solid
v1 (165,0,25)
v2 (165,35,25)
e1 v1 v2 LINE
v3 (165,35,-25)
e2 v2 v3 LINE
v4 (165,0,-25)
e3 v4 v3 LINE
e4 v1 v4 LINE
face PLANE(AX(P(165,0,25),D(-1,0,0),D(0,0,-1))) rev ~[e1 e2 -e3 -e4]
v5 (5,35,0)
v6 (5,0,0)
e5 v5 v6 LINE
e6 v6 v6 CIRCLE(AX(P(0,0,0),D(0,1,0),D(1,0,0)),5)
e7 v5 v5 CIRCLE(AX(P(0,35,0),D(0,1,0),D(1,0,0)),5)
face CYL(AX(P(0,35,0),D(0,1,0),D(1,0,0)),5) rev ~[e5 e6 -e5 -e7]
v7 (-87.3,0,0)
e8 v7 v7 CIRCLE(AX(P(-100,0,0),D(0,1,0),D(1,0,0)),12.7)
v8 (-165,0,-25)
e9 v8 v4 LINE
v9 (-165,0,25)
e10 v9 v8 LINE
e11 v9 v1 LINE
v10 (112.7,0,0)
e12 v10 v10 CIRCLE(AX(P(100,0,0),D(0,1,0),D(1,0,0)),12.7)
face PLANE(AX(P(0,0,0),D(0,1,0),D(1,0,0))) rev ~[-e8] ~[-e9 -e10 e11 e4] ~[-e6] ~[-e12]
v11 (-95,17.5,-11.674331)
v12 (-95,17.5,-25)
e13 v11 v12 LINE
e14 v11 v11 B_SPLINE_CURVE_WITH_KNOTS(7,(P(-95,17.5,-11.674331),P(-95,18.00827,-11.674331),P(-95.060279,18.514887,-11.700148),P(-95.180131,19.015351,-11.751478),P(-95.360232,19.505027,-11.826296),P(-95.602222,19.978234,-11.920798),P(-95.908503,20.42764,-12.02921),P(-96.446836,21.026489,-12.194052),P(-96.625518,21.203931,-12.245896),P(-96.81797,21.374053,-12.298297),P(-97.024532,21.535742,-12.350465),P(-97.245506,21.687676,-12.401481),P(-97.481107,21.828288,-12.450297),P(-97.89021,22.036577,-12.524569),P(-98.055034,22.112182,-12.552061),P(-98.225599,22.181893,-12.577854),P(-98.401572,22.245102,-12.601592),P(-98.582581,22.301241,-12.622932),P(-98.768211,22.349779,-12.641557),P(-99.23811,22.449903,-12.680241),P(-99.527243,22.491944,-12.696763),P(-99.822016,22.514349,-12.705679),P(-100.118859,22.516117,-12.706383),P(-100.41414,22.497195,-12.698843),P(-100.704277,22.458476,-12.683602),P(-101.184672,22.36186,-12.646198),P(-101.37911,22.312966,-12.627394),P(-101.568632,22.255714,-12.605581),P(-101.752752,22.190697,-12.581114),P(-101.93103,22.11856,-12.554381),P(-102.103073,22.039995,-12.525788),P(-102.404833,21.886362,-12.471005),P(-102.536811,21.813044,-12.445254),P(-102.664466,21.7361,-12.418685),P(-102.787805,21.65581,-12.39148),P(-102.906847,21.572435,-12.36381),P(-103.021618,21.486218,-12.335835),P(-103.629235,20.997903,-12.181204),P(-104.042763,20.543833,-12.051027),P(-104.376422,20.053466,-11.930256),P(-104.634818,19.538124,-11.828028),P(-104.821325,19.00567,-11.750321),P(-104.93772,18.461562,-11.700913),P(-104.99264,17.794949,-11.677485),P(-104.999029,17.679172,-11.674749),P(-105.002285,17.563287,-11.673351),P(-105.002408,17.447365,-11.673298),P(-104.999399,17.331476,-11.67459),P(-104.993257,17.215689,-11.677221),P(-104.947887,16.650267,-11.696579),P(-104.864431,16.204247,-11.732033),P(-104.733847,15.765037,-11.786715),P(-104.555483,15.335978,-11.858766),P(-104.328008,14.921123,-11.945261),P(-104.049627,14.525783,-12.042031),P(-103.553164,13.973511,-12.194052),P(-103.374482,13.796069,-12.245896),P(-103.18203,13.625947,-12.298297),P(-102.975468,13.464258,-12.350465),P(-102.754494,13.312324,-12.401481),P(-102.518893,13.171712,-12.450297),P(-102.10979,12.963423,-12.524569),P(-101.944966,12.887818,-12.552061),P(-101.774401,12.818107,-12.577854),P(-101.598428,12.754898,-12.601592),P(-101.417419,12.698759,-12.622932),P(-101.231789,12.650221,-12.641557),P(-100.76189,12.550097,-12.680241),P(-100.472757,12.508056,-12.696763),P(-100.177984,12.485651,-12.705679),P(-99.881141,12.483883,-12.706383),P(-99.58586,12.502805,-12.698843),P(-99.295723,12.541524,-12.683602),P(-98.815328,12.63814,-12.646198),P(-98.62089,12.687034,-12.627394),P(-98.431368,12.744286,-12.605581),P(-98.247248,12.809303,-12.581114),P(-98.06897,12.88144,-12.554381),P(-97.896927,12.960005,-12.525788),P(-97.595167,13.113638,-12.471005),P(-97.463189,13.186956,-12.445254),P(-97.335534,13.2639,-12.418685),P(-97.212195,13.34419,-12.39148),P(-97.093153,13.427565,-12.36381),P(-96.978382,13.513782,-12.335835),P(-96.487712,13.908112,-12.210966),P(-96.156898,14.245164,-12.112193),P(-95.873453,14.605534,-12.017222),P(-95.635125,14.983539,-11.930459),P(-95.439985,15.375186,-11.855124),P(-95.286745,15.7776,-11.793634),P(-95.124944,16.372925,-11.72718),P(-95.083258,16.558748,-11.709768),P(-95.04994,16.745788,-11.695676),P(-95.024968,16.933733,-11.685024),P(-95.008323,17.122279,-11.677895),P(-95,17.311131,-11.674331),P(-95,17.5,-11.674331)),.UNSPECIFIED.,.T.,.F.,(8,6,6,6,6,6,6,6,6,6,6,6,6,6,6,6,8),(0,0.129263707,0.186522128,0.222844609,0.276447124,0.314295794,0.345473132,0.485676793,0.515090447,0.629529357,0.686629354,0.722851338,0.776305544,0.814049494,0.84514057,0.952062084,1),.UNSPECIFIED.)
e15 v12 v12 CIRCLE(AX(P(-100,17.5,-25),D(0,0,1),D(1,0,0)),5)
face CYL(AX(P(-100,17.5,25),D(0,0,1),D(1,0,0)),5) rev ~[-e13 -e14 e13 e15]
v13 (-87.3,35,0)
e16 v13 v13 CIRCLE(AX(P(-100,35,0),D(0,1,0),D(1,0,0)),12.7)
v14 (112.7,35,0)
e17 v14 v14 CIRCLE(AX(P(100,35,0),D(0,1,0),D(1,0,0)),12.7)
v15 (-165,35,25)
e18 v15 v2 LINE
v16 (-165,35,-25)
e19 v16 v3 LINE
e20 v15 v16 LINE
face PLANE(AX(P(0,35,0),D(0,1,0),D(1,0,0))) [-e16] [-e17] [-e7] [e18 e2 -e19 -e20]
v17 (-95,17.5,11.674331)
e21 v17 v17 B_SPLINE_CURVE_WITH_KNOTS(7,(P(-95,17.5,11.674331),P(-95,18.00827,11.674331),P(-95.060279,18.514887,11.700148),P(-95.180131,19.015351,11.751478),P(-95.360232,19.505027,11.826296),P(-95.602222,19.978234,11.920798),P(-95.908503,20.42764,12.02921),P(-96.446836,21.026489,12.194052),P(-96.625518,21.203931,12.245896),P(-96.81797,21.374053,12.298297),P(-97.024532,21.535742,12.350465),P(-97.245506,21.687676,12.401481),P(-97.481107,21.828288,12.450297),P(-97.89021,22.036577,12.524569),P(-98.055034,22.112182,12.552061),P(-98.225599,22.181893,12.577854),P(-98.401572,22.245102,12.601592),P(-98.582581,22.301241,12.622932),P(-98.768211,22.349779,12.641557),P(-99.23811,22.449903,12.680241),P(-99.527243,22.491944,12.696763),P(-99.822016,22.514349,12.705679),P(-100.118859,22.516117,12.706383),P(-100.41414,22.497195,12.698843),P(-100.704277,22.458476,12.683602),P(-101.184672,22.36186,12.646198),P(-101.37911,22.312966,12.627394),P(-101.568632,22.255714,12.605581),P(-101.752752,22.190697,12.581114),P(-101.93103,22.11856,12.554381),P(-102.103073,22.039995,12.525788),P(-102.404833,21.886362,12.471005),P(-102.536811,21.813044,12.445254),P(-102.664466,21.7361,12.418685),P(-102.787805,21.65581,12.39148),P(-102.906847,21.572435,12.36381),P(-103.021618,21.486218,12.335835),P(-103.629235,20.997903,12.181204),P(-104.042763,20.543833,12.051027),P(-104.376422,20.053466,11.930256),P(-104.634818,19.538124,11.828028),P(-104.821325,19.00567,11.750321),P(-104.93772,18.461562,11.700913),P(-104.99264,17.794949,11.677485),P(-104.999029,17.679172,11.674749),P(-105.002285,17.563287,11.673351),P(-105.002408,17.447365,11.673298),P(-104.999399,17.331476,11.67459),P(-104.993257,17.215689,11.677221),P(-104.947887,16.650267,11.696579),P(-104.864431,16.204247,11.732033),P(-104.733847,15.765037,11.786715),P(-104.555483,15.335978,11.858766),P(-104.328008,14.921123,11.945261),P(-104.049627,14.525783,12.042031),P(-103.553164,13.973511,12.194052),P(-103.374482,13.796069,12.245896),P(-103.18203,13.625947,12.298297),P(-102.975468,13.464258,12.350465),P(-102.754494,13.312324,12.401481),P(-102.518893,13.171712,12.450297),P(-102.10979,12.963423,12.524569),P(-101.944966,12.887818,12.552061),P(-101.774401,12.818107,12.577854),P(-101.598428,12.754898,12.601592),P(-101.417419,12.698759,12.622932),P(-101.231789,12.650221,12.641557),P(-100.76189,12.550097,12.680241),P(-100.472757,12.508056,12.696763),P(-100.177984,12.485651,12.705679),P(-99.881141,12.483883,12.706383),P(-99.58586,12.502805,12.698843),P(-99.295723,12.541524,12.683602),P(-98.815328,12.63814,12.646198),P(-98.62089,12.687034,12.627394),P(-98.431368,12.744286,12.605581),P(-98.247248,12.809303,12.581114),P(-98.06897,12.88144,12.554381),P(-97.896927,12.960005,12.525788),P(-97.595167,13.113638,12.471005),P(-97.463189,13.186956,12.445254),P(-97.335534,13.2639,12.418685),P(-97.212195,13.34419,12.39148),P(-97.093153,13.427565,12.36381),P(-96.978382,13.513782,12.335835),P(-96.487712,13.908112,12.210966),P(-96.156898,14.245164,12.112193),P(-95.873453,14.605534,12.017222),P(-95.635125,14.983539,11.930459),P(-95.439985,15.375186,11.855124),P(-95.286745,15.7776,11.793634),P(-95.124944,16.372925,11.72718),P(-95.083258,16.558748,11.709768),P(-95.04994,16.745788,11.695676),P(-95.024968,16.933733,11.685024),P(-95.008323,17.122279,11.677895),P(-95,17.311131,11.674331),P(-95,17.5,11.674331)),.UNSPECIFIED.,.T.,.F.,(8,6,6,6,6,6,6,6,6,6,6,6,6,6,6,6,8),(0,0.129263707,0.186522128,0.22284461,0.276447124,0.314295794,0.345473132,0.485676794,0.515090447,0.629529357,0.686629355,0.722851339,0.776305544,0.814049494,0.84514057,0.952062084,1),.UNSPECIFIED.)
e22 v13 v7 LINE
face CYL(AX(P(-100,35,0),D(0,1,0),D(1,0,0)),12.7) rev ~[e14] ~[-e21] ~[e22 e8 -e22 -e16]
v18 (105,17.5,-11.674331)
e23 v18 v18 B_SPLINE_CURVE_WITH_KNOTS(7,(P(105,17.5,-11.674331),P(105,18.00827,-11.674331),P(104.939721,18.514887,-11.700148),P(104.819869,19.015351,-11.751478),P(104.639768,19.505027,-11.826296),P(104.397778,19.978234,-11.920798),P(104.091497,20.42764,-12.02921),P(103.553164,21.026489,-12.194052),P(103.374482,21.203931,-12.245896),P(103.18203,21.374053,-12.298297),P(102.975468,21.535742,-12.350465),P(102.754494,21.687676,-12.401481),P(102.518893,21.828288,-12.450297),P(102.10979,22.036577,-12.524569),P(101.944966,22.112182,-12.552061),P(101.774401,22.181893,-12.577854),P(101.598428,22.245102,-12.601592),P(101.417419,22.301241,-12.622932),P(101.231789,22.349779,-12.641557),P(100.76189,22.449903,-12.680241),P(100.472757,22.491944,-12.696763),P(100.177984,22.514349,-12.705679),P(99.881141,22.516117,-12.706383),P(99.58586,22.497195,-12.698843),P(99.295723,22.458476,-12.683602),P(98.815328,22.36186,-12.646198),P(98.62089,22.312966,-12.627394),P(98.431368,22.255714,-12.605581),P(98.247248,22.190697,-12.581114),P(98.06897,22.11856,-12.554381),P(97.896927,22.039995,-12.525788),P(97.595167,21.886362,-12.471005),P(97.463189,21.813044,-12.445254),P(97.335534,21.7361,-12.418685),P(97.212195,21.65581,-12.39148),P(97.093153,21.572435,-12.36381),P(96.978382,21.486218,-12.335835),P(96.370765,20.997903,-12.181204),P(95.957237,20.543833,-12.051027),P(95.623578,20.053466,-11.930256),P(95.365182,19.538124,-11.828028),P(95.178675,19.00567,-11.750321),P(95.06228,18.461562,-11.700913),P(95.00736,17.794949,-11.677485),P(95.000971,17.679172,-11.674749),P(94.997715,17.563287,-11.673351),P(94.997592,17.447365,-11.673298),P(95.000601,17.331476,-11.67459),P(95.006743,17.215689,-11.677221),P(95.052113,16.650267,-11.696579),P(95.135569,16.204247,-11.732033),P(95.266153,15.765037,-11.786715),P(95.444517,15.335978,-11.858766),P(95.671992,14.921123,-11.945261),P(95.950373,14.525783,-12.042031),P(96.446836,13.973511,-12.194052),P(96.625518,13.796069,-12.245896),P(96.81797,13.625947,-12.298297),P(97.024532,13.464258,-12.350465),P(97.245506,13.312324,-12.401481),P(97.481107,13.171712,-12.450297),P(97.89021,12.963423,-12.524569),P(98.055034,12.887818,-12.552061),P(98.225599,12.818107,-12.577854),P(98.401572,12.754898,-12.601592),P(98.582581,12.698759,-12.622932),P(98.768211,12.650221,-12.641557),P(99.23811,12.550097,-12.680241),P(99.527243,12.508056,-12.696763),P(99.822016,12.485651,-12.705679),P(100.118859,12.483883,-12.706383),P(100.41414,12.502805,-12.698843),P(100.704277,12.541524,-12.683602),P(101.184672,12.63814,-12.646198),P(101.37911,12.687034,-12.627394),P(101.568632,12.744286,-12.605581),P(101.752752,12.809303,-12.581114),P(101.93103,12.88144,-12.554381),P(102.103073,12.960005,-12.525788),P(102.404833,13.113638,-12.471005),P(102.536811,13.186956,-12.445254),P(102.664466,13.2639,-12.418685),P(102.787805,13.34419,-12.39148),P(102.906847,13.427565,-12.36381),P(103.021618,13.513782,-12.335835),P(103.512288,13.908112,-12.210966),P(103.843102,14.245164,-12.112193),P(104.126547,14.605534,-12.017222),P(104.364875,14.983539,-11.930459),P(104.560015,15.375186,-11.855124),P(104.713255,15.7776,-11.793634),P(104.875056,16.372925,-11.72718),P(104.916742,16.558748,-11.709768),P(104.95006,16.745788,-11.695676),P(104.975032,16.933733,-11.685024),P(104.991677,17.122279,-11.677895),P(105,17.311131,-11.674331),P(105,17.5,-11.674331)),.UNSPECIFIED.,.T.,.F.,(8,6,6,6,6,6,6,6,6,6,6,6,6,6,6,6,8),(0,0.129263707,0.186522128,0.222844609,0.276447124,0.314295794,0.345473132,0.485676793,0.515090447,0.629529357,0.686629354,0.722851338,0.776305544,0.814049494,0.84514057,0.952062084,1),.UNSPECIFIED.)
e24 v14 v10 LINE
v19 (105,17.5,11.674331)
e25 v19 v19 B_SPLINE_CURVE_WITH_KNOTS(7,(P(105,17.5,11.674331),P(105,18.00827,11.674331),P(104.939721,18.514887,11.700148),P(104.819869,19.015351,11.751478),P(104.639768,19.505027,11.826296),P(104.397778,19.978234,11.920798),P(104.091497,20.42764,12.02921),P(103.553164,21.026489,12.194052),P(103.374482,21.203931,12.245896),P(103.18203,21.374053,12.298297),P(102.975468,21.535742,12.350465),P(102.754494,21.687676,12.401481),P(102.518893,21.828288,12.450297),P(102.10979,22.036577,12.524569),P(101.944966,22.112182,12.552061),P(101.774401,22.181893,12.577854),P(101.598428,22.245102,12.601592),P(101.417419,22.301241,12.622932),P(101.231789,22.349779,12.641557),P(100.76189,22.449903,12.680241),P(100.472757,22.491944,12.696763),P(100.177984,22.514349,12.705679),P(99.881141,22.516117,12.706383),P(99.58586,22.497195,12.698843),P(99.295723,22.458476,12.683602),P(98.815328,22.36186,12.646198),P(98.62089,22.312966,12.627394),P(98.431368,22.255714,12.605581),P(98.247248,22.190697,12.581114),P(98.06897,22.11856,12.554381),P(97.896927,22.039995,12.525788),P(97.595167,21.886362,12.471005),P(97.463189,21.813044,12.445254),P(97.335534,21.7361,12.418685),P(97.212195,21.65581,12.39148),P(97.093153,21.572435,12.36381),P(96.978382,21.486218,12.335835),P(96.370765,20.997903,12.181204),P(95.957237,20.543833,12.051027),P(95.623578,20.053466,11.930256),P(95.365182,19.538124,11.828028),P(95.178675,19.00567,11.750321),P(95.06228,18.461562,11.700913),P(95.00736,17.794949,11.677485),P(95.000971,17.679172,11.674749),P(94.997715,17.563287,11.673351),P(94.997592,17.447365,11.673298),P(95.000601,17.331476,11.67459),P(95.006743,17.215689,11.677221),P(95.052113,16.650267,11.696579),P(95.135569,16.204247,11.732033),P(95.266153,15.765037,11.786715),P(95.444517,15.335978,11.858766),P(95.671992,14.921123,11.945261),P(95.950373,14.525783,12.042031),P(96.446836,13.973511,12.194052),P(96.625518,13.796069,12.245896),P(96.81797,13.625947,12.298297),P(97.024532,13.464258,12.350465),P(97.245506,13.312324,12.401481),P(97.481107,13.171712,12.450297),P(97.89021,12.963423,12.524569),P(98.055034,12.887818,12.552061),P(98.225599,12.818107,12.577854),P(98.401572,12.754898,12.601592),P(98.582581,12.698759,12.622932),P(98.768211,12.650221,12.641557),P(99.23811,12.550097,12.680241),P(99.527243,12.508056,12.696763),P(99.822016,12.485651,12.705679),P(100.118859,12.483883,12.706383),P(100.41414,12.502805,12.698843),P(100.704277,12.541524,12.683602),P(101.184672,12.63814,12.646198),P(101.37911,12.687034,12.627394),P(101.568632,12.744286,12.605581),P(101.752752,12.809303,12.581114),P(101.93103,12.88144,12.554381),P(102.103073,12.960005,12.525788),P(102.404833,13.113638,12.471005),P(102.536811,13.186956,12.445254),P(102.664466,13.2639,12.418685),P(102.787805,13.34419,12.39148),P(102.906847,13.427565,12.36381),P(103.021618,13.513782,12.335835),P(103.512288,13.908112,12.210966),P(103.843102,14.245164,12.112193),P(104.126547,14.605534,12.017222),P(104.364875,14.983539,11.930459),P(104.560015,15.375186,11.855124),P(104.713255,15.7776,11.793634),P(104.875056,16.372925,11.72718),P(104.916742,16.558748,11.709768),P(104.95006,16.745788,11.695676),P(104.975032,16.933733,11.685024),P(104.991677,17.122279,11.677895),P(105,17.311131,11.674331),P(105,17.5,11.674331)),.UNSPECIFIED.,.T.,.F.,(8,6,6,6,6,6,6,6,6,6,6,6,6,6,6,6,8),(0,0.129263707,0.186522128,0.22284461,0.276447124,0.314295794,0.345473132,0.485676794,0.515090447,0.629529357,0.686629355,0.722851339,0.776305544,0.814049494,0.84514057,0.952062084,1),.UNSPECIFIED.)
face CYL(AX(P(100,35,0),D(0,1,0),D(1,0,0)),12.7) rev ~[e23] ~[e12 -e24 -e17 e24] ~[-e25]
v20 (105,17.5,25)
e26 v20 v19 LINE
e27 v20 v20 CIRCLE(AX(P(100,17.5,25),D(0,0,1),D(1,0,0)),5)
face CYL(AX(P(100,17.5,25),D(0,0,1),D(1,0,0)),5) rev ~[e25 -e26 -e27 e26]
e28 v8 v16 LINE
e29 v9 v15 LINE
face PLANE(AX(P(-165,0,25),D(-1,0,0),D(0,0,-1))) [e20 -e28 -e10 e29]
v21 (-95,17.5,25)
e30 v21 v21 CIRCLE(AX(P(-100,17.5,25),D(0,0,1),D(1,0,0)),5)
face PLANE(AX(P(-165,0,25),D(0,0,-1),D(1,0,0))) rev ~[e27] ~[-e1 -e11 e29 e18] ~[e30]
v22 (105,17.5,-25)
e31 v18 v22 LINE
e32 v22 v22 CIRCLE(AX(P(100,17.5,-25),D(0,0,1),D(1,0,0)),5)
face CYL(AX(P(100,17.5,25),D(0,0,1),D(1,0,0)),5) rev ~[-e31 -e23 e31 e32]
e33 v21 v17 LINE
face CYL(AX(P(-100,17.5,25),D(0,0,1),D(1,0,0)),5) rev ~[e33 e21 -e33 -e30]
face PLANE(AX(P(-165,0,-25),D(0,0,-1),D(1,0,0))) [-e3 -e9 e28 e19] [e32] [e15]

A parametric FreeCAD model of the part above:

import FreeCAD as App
import Part
import Sketcher
from FreeCAD import Vector

doc = App.newDocument("Part")
body = doc.addObject("PartDesign::Body", "Body")

# Sketch on XZ plane
sketch1 = body.newObject("Sketcher::SketchObject", "Sketch")
sketch1.AttachmentSupport = (doc.getObject("XZ_Plane"), [""])
sketch1.MapMode = "FlatFace"
sketch1.addGeometry(Part.LineSegment(Vector(-165, -25, 0), Vector(-165, 25, 0)), False)
sketch1.addGeometry(Part.LineSegment(Vector(-165, 25, 0), Vector(165, 25, 0)), False)
sketch1.addGeometry(Part.LineSegment(Vector(165, 25, 0), Vector(165, -25, 0)), False)
sketch1.addGeometry(Part.LineSegment(Vector(165, -25, 0), Vector(-165, -25, 0)), False)
sketch1.addConstraint(Sketcher.Constraint("Coincident", 0, 2, 1, 1))
sketch1.addConstraint(Sketcher.Constraint("Coincident", 1, 2, 2, 1))
sketch1.addConstraint(Sketcher.Constraint("Coincident", 2, 2, 3, 1))
sketch1.addConstraint(Sketcher.Constraint("Coincident", 3, 2, 0, 1))
sketch1.addConstraint(Sketcher.Constraint("Vertical", 0))
sketch1.addConstraint(Sketcher.Constraint("Horizontal", 1))
sketch1.addConstraint(Sketcher.Constraint("Vertical", 2))
sketch1.addConstraint(Sketcher.Constraint("Horizontal", 3))
sketch1.addConstraint(Sketcher.Constraint("Symmetric", 0, 2, 2, 2, -1, 1))
sketch1.addConstraint(Sketcher.Constraint("DistanceX", 1, 1, 1, 2, 330.0))
sketch1.addConstraint(Sketcher.Constraint("DistanceY", 0, 1, 0, 2, 50.0))
pad1 = body.newObject("PartDesign::Pad", "Pad")
pad1.Profile = sketch1
pad1.Length = 35
pad1.Reversed = True

# Sketch on XZ plane
sketch2 = body.newObject("Sketcher::SketchObject", "Sketch001")
sketch2.AttachmentSupport = (doc.getObject("XZ_Plane"), [""])
sketch2.MapMode = "FlatFace"
sketch2.AttachmentOffset = App.Placement(Vector(0, 0, -35), App.Rotation())
sketch2.addGeometry(Part.Circle(Vector(-100, 0, 0), Vector(0, 0, 1), 13), False)
sketch2.addGeometry(Part.Circle(Vector(100, 0, 0), Vector(0, 0, 1), 13), False)
sketch2.addConstraint(Sketcher.Constraint("Equal", 0, 1))
sketch2.addConstraint(Sketcher.Constraint("Symmetric", 0, 3, 1, 3, -1, 1))
sketch2.addConstraint(Sketcher.Constraint("PointOnObject", 0, 3, -1))
sketch2.addConstraint(Sketcher.Constraint("Diameter", 0, 25.4))
sketch2.addConstraint(Sketcher.Constraint("DistanceX", 0, 3, -1, 1, 100.0))
pocket1 = body.newObject("PartDesign::Pocket", "Pocket")
pocket1.Profile = sketch2
pocket1.Length = 70
pocket1.Reversed = True

# Sketch on XY plane
sketch3 = body.newObject("Sketcher::SketchObject", "Sketch002")
sketch3.AttachmentSupport = (doc.getObject("XY_Plane"), [""])
sketch3.MapMode = "FlatFace"
sketch3.AttachmentOffset = App.Placement(Vector(0, 0, 25), App.Rotation())
sketch3.addGeometry(Part.Circle(Vector(-100, 18, 0), Vector(0, 0, 1), 5), False)
sketch3.addGeometry(Part.Circle(Vector(100, 18, 0), Vector(0, 0, 1), 5), False)
sketch3.addConstraint(Sketcher.Constraint("Equal", 0, 1))
sketch3.addConstraint(Sketcher.Constraint("Symmetric", 0, 3, 1, 3, -2))
sketch3.addConstraint(Sketcher.Constraint("Diameter", 0, 10.0))
sketch3.addConstraint(Sketcher.Constraint("DistanceX", 0, 3, -1, 1, 100.0))
sketch3.addConstraint(Sketcher.Constraint("DistanceY", -1, 1, 0, 3, 17.5))
pocket2 = body.newObject("PartDesign::Pocket", "Pocket001")
pocket2.Profile = sketch3
pocket2.Length = 70

# Sketch on XZ plane
sketch4 = body.newObject("Sketcher::SketchObject", "Sketch003")
sketch4.AttachmentSupport = (doc.getObject("XZ_Plane"), [""])
sketch4.MapMode = "FlatFace"
sketch4.AttachmentOffset = App.Placement(Vector(0, 0, -35), App.Rotation())
sketch4.addGeometry(Part.Circle(Vector(0, 0, 0), Vector(0, 0, 1), 5), False)
sketch4.addConstraint(Sketcher.Constraint("Coincident", 0, 3, -1, 1))
sketch4.addConstraint(Sketcher.Constraint("Diameter", 0, 10.0))
pocket3 = body.newObject("PartDesign::Pocket", "Pocket002")
pocket3.Profile = sketch4
pocket3.Length = 43
pocket3.Reversed = True

doc.recompute()
